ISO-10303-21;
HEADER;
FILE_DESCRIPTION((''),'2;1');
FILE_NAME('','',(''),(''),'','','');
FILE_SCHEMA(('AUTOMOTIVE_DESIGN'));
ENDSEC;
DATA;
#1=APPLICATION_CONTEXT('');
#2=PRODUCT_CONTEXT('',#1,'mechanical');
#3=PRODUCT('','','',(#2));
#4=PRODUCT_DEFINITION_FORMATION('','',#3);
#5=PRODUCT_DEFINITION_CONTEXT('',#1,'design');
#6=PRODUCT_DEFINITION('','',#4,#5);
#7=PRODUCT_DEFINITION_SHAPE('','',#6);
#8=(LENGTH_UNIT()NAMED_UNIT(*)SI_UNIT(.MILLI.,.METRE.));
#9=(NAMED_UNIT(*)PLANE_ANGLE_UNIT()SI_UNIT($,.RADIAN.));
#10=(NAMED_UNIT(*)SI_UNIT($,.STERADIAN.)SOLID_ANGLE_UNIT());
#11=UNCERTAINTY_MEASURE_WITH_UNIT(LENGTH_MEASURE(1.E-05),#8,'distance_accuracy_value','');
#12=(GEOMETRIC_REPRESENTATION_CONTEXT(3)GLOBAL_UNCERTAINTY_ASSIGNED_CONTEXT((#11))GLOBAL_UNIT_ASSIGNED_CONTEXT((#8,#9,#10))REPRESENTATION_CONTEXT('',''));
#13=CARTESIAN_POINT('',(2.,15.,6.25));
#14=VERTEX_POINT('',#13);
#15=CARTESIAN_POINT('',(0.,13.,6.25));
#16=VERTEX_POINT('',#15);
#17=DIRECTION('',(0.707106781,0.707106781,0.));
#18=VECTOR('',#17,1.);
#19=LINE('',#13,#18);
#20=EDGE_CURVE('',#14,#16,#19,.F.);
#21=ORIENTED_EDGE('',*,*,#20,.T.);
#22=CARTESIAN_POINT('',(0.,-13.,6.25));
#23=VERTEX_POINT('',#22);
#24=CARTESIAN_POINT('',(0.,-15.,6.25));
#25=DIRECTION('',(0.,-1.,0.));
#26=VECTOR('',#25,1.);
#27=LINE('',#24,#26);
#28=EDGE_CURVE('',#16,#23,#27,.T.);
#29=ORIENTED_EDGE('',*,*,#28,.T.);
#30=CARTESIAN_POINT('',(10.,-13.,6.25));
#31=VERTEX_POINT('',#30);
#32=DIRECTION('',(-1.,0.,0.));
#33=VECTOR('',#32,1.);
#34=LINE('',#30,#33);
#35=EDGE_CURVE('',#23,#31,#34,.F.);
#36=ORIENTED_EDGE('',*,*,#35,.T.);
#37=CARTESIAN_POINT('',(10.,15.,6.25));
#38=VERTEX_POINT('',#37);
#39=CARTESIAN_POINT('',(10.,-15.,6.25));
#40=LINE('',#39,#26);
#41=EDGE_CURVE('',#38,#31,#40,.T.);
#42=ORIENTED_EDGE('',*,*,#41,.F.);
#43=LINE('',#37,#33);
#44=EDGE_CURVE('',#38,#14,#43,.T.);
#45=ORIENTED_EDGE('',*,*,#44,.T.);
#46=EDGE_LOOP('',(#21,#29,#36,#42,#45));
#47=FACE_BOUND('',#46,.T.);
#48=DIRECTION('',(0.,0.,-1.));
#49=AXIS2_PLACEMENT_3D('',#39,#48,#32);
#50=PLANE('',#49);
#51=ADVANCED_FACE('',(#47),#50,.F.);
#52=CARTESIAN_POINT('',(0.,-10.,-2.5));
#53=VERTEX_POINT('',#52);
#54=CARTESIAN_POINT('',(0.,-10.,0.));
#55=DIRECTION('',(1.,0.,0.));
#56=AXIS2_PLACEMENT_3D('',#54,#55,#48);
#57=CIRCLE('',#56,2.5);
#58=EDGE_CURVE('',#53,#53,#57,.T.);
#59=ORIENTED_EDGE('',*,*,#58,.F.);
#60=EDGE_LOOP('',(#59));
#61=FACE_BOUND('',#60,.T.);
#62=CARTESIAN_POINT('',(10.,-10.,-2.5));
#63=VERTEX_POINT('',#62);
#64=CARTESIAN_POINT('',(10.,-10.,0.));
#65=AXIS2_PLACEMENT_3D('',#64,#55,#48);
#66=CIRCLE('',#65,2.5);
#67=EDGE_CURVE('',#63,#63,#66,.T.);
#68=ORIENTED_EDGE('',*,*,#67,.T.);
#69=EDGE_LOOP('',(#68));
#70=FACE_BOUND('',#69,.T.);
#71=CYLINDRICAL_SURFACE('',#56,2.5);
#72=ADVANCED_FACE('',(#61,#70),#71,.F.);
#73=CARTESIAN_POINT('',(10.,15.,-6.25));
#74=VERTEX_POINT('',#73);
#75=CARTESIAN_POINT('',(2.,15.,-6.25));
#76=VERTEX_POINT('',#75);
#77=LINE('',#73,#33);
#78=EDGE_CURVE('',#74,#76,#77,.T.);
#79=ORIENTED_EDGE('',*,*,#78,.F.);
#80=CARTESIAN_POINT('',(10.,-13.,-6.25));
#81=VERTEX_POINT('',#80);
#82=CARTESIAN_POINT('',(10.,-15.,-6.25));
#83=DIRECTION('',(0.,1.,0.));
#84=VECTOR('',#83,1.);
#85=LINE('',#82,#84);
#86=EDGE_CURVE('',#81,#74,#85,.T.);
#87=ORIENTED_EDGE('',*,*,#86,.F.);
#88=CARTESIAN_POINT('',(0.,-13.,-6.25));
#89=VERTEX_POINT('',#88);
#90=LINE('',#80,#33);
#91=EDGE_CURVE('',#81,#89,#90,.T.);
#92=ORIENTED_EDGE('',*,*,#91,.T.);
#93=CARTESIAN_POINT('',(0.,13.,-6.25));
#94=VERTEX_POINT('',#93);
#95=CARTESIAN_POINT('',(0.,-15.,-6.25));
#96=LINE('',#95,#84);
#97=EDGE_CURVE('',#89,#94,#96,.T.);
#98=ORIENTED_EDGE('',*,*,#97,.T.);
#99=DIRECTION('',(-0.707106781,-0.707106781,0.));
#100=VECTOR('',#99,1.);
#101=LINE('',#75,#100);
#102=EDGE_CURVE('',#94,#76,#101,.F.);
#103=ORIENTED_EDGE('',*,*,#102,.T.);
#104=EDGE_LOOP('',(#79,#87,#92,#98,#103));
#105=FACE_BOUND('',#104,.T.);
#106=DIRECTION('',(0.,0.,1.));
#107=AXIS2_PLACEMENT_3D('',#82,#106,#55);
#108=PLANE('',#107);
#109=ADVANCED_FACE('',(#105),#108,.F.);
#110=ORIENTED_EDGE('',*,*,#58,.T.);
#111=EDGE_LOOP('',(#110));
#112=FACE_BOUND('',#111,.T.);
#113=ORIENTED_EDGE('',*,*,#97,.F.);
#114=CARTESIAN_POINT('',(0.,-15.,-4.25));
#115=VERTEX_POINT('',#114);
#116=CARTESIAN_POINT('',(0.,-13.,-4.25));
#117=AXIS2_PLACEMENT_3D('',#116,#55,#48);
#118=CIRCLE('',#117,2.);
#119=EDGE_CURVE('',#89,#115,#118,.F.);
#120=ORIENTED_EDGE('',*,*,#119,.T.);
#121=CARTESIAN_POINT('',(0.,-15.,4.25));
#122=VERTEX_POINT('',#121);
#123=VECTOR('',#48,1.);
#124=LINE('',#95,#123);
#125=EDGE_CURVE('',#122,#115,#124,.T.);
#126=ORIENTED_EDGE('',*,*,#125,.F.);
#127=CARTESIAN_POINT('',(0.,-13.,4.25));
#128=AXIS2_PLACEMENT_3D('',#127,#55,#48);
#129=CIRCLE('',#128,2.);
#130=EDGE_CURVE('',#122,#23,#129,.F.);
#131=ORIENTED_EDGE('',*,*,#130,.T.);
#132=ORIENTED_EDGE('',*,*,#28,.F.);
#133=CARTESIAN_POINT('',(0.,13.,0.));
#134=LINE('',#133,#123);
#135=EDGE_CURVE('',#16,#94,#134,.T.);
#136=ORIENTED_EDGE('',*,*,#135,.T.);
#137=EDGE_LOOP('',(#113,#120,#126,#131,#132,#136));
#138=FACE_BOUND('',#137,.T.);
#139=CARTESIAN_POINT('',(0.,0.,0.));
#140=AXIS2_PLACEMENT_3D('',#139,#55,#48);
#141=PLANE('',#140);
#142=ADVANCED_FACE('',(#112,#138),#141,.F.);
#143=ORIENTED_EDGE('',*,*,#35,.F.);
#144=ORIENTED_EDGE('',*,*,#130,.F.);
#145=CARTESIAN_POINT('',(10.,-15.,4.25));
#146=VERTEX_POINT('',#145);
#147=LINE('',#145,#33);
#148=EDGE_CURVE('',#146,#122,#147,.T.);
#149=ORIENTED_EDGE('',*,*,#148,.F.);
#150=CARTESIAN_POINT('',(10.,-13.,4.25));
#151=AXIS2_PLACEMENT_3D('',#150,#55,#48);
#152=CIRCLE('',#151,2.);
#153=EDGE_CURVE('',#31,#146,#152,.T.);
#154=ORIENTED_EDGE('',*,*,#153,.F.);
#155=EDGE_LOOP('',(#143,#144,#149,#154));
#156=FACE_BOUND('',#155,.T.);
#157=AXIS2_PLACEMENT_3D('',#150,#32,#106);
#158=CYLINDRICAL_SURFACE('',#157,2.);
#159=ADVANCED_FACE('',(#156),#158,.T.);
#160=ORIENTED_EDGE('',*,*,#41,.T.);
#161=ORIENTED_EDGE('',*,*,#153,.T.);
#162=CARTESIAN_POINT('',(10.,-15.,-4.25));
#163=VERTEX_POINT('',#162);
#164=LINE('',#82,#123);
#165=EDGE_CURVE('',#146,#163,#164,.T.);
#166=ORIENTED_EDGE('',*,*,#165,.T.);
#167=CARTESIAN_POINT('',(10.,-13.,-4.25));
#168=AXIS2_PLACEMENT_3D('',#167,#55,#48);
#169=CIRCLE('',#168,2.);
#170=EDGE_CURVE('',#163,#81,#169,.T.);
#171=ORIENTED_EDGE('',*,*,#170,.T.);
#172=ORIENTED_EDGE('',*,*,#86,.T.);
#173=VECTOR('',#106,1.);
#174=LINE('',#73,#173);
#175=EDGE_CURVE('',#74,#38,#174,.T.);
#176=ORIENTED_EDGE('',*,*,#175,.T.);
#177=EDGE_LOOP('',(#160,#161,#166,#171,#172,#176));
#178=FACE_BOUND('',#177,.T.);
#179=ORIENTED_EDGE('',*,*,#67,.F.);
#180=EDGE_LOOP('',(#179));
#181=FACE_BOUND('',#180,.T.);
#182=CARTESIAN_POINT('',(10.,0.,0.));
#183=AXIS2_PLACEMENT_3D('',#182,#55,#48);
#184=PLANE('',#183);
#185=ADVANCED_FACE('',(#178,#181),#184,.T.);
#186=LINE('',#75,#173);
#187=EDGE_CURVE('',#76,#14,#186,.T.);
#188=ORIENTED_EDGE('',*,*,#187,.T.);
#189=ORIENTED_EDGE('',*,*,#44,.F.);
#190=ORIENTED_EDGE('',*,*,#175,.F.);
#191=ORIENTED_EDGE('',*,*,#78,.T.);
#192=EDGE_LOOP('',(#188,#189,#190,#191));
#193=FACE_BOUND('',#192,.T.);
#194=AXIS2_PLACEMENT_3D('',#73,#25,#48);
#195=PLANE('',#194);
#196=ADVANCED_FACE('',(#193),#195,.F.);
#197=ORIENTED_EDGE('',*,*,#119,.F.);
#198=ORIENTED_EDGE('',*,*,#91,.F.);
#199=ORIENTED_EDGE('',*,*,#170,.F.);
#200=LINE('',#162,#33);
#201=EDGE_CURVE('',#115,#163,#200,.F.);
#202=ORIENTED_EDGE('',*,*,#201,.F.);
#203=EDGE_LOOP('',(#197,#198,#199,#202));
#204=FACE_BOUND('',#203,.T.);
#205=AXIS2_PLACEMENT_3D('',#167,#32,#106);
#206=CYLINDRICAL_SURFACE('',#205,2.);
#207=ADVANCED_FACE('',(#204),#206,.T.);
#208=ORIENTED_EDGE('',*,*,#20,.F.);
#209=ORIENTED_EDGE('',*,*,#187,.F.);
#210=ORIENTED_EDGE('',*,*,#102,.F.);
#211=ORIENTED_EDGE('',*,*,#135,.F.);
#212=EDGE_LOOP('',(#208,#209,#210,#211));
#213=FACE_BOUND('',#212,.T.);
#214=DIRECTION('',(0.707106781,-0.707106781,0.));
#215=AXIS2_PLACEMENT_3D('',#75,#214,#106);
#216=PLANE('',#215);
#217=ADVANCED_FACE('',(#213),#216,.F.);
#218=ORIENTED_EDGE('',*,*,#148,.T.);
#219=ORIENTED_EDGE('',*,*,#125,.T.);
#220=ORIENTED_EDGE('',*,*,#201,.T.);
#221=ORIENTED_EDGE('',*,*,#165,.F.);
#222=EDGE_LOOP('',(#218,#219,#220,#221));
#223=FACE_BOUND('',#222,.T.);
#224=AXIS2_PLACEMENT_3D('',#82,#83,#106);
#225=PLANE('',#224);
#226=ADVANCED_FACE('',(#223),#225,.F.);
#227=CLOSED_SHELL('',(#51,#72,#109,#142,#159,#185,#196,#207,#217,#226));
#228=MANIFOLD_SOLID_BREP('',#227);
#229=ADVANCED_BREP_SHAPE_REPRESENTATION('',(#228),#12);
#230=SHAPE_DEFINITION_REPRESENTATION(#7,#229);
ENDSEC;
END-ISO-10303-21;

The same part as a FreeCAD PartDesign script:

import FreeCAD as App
import Part
import Sketcher
from FreeCAD import Vector
Q = App.Units.Quantity


def edges_at(feature, points):
    """Names of the edges that pass closest to the given points."""
    edges = feature.Shape.Edges
    near = lambda p: min(range(len(edges)), key=lambda i: edges[i].distToShape(Part.Vertex(*p))[0])
    return sorted({f"Edge{near(p) + 1}" for p in points})

doc = App.newDocument("Part")
body = doc.addObject("PartDesign::Body", "Body")

# Sketch on YZ plane
sketch1 = doc.addObject("Sketcher::SketchObject", "Sketch")
body.addObject(sketch1)
sketch1.AttachmentSupport = (doc.YZ_Plane, [""])
sketch1.MapMode = "FlatFace"
sketch1.addGeometry(Part.LineSegment(Vector(15, 6, 0), Vector(-15, 6, 0)), False)
sketch1.addGeometry(Part.LineSegment(Vector(-15, 6, 0), Vector(-15, -6, 0)), False)
sketch1.addGeometry(Part.LineSegment(Vector(-15, -6, 0), Vector(15, -6, 0)), False)
sketch1.addGeometry(Part.LineSegment(Vector(15, -6, 0), Vector(15, 6, 0)), False)
sketch1.addConstraint(Sketcher.Constraint("Coincident", 0, 2, 1, 1))
sketch1.addConstraint(Sketcher.Constraint("Coincident", 1, 2, 2, 1))
sketch1.addConstraint(Sketcher.Constraint("Coincident", 2, 2, 3, 1))
sketch1.addConstraint(Sketcher.Constraint("Coincident", 3, 2, 0, 1))
sketch1.addConstraint(Sketcher.Constraint("Horizontal", 0))
sketch1.addConstraint(Sketcher.Constraint("Vertical", 1))
sketch1.addConstraint(Sketcher.Constraint("Horizontal", 2))
sketch1.addConstraint(Sketcher.Constraint("Vertical", 3))
sketch1.addConstraint(Sketcher.Constraint("Symmetric", 0, 2, 2, 2, -1, 1))
sketch1.addConstraint(Sketcher.Constraint("DistanceX", 0, 2, 0, 1, Q("30 mm")))
sketch1.addConstraint(Sketcher.Constraint("DistanceY", 1, 2, 1, 1, Q("12.5 mm")))
pad1 = doc.addObject("PartDesign::Pad", "Pad")
body.addObject(pad1)
pad1.Profile = sketch1
pad1.Length = 10

# Sketch on YZ plane
sketch2 = doc.addObject("Sketcher::SketchObject", "Sketch001")
body.addObject(sketch2)
sketch2.AttachmentSupport = (doc.YZ_Plane, [""])
sketch2.MapMode = "FlatFace"
sketch2.AttachmentOffset = App.Placement(Vector(0, 0, 10), App.Rotation())
sketch2.addGeometry(Part.Circle(Vector(-10, 0, 0), Vector(0, 0, 1), 2.5), False)
sketch2.addConstraint(Sketcher.Constraint("PointOnObject", 0, 3, -1))
sketch2.addConstraint(Sketcher.Constraint("Diameter", 0, Q("5 mm")))
sketch2.addConstraint(Sketcher.Constraint("DistanceX", 0, 3, -1, 1, Q("10 mm")))
pocket1 = doc.addObject("PartDesign::Pocket", "Pocket")
body.addObject(pocket1)
pocket1.Profile = sketch2
pocket1.Type = "ThroughAll"
pocket1.Midplane = True
doc.recompute()

fillet = doc.addObject("PartDesign::Fillet", "Fillet")
body.addObject(fillet)
fillet.Base = (pocket1, edges_at(pocket1, [(5, -15, -6.25), (5, -15, 6.25)]))
fillet.Radius = 2
doc.recompute()

chamfer = doc.addObject("PartDesign::Chamfer", "Chamfer")
body.addObject(chamfer)
chamfer.Base = (fillet, edges_at(fillet, [(0, 15, 0)]))
chamfer.Size = 2

doc.recompute()
